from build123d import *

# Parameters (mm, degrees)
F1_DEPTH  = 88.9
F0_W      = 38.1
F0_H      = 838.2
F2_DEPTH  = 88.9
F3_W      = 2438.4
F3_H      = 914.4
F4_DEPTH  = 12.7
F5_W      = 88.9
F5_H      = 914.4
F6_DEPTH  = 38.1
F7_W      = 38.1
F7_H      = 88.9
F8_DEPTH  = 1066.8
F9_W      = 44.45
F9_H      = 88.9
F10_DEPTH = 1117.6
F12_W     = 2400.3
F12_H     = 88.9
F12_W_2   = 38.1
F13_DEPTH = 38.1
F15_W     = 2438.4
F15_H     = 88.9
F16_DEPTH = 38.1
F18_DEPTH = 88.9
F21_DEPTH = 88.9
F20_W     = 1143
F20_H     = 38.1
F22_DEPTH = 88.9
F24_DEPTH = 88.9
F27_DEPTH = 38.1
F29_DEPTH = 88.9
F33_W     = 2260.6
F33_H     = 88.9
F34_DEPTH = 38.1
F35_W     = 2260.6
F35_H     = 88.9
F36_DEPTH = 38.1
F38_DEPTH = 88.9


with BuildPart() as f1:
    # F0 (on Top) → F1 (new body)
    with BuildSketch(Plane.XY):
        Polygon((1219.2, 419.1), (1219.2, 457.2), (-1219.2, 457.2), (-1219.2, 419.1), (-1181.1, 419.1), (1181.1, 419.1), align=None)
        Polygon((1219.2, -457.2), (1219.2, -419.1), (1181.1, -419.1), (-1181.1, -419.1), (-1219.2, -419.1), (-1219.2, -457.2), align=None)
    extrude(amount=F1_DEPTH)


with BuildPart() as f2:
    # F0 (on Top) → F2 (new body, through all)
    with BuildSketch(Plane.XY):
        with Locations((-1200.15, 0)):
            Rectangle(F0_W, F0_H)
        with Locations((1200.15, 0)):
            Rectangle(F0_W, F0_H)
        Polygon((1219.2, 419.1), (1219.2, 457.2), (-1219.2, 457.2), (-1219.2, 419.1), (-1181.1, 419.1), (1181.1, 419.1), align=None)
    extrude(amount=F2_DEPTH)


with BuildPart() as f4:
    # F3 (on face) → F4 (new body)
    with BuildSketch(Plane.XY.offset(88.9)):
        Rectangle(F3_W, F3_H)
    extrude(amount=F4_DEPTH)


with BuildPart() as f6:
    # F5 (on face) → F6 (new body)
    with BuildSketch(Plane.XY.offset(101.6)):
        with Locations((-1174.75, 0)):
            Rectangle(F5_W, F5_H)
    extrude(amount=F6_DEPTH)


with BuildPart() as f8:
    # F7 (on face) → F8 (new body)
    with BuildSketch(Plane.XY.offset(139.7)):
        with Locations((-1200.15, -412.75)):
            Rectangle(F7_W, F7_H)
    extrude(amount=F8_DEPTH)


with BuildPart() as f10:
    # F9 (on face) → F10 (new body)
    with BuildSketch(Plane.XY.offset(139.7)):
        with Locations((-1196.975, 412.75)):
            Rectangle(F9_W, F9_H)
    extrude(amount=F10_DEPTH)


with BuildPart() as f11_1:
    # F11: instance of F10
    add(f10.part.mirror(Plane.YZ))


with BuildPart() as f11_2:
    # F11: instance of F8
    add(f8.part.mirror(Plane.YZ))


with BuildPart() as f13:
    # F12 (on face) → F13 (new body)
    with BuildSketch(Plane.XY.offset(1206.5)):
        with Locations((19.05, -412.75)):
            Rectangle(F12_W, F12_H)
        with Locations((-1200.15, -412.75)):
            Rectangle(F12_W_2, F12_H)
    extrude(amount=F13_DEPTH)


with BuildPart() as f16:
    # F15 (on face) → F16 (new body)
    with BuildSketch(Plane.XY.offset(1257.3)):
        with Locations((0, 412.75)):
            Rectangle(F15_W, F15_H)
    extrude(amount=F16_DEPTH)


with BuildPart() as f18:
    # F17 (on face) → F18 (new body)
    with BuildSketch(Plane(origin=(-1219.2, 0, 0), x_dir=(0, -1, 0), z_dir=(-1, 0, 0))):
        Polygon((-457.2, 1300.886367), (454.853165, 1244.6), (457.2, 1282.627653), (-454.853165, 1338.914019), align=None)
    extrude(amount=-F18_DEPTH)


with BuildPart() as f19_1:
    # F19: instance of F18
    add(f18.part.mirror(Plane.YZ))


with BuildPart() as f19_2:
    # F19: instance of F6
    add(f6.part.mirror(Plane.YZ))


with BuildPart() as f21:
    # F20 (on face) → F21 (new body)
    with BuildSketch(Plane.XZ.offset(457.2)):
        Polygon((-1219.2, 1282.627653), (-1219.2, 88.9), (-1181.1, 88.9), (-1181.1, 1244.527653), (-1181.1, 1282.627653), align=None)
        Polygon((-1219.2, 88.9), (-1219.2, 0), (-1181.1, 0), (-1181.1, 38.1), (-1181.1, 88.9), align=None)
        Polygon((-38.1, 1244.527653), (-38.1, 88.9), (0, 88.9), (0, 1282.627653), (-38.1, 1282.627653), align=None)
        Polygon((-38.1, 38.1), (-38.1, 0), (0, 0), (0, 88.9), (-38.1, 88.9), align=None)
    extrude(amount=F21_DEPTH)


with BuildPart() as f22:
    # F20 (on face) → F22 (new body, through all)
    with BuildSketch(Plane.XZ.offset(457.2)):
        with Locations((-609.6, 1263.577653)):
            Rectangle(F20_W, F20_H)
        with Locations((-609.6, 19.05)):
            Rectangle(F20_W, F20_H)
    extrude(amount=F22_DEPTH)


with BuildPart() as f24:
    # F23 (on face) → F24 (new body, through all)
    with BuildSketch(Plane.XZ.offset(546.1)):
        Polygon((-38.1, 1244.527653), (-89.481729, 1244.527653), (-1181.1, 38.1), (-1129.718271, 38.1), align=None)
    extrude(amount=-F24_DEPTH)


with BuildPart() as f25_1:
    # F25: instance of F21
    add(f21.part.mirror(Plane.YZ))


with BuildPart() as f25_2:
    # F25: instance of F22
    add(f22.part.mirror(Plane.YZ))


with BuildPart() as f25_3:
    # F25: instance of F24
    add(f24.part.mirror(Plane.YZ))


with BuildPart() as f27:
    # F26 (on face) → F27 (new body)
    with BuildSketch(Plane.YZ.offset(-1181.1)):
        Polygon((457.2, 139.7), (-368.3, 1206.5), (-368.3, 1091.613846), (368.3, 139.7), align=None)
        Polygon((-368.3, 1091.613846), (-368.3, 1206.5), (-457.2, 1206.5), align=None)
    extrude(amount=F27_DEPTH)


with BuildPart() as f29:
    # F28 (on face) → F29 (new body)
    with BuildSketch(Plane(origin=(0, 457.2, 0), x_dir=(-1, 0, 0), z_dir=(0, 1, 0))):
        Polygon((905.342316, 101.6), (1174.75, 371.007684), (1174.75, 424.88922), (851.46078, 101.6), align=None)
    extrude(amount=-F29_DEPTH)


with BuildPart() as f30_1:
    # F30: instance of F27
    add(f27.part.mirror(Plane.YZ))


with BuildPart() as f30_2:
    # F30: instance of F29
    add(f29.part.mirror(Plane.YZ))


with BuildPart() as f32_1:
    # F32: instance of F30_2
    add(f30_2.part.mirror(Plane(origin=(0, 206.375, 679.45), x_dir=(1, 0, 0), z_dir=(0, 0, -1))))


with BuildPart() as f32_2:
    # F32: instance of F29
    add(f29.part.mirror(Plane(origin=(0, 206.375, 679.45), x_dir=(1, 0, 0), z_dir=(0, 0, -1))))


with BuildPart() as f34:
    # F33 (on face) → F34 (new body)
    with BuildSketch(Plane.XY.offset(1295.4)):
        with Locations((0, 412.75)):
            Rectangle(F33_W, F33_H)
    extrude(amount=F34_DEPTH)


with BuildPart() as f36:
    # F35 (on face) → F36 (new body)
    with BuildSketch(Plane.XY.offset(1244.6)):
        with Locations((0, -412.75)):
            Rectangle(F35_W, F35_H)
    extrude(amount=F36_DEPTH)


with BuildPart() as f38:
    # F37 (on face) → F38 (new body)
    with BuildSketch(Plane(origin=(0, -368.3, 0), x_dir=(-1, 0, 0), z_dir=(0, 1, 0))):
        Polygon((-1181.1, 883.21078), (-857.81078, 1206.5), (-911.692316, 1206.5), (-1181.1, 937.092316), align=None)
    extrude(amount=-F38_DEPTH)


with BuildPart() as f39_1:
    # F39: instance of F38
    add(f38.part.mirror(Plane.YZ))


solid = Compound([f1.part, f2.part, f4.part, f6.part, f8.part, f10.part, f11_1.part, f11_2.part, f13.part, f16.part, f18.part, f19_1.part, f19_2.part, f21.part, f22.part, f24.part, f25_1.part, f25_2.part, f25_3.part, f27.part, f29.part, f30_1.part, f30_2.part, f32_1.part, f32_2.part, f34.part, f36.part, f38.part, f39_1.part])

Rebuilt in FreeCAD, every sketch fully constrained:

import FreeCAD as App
import Part
import Sketcher

V = App.Vector
Q = App.Units.Quantity


def add_polygon(sketch, points):
    """Adds a closed chain of lines whose ends are joined by coincident constraints."""
    first, n = sketch.GeometryCount, len(points)
    for a, b in zip(points, points[1:] + points[:1]):
        sketch.addGeometry(Part.LineSegment(App.Vector(*a, 0), App.Vector(*b, 0)), False)
    for i in range(n):
        sketch.addConstraint(Sketcher.Constraint("Coincident", first + i, 2, first + (i + 1) % n, 1))

doc = App.newDocument("Part")
body = doc.addObject("PartDesign::Body", "Body")
body.AllowCompound = True

# Sketch on XY plane
sketch1 = body.newObject("Sketcher::SketchObject", "Sketch")
sketch1.AttachmentSupport = (doc.getObject("XY_Plane"), [""])
sketch1.MapMode = "FlatFace"
add_polygon(sketch1, [(1219, 419), (1219, 457), (-1219, 457), (-1219, 419)])  # lines 0-3
add_polygon(sketch1, [(1219, -457), (1219, -419), (-1219, -419), (-1219, -457)])  # lines 4-7
sketch1.addConstraint([
    Sketcher.Constraint("Vertical", 0),
    Sketcher.Constraint("Horizontal", 1),
    Sketcher.Constraint("Vertical", 2),
    Sketcher.Constraint("Horizontal", 3),
    Sketcher.Constraint("Vertical", 4),
    Sketcher.Constraint("Horizontal", 5),
    Sketcher.Constraint("Vertical", 6),
    Sketcher.Constraint("Horizontal", 7),
    Sketcher.Constraint("Symmetric", 2, 2, 4, 2, -1, 1),
    Sketcher.Constraint("Symmetric", 0, 2, 6, 2, -1, 1),
    Sketcher.Constraint("Vertical", 3, 2, 4, 2),
    Sketcher.Constraint("DistanceX", 1, 2, 1, 1, Q("96 in")),
    Sketcher.Constraint("DistanceY", 0, 1, 0, 2, Q("1.5 in")),
    Sketcher.Constraint("DistanceY", -1, 1, 0, 2, Q("18 in")),
])
pad1 = body.newObject("PartDesign::Pad", "Pad")
pad1.Profile = sketch1
pad1.Length = Q("3.5 in")
body2 = doc.addObject("PartDesign::Body", "Body001")

# Sketch on XY plane
sketch2 = body2.newObject("Sketcher::SketchObject", "Sketch001")
sketch2.AttachmentSupport = (doc.getObject("XY_Plane001"), [""])
sketch2.MapMode = "FlatFace"
add_polygon(sketch2, [(-1219, -419), (-1181, -419), (-1181, 419), (1181, 419), (1181, -419), (1219, -419), (1219, 457), (-1219, 457)])  # lines 0-7
sketch2.addConstraint([
    Sketcher.Constraint("Horizontal", 0),
    Sketcher.Constraint("Vertical", 1),
    Sketcher.Constraint("Horizontal", 2),
    Sketcher.Constraint("Vertical", 3),
    Sketcher.Constraint("Horizontal", 4),
    Sketcher.Constraint("Vertical", 5),
    Sketcher.Constraint("Horizontal", 6),
    Sketcher.Constraint("Vertical", 7),
    Sketcher.Constraint("Symmetric", 0, 2, 2, 2, -1, 1),
    Sketcher.Constraint("Symmetric", 4, 2, 7, 2, -2),
    Sketcher.Constraint("DistanceX", 2, 1, 2, 2, Q("93 in")),
    Sketcher.Constraint("DistanceX", 6, 2, 6, 1, Q("96 in")),
    Sketcher.Constraint("DistanceY", 1, 1, 1, 2, Q("33 in")),
    Sketcher.Constraint("DistanceY", 5, 1, 5, 2, Q("34.5 in")),
])
pad2 = body2.newObject("PartDesign::Pad", "Pad001")
pad2.Profile = sketch2
pad2.Length = Q("3.5 in")
body3 = doc.addObject("PartDesign::Body", "Body002")

# Sketch on XY plane
sketch3 = body3.newObject("Sketcher::SketchObject", "Sketch002")
sketch3.AttachmentSupport = (doc.getObject("XY_Plane002"), [""])
sketch3.MapMode = "FlatFace"
sketch3.AttachmentOffset = App.Placement(V(0, 0, 3.5 * 25.4), App.Rotation())
add_polygon(sketch3, [(-1219, 457), (-1219, -457), (1219, -457), (1219, 457)])  # lines 0-3
sketch3.addConstraint([
    Sketcher.Constraint("Vertical", 0),
    Sketcher.Constraint("Horizontal", 1),
    Sketcher.Constraint("Vertical", 2),
    Sketcher.Constraint("Horizontal", 3),
    Sketcher.Constraint("Symmetric", 0, 2, 2, 2, -1, 1),
    Sketcher.Constraint("DistanceX", 1, 1, 1, 2, Q("96 in")),
    Sketcher.Constraint("DistanceY", 0, 2, 0, 1, Q("36 in")),
])
pad3 = body3.newObject("PartDesign::Pad", "Pad002")
pad3.Profile = sketch3
pad3.Length = Q("0.5 in")
body4 = doc.addObject("PartDesign::Body", "Body003")

# Sketch on XY plane
sketch4 = body4.newObject("Sketcher::SketchObject", "Sketch003")
sketch4.AttachmentSupport = (doc.getObject("XY_Plane003"), [""])
sketch4.MapMode = "FlatFace"
sketch4.AttachmentOffset = App.Placement(V(0, 0, 4 * 25.4), App.Rotation())
add_polygon(sketch4, [(-1219, 457), (-1219, -457), (-1130, -457), (-1130, 457)])  # lines 0-3
sketch4.addConstraint([
    Sketcher.Constraint("Vertical", 0),
    Sketcher.Constraint("Horizontal", 1),
    Sketcher.Constraint("Vertical", 2),
    Sketcher.Constraint("Horizontal", 3),
    Sketcher.Constraint("DistanceY", 0, 2, 0, 1, Q("36 in")),
    Sketcher.Constraint("DistanceX", 1, 1, 1, 2, Q("3.5 in")),
    Sketcher.Constraint("DistanceX", 0, 2, -1, 1, Q("48 in")),
    Sketcher.Constraint("DistanceY", 0, 2, -1, 1, Q("18 in")),
])
pad4 = body4.newObject("PartDesign::Pad", "Pad003")
pad4.Profile = sketch4
pad4.Length = Q("1.5 in")
body5 = doc.addObject("PartDesign::Body", "Body004")

# Sketch on XY plane
sketch5 = body5.newObject("Sketcher::SketchObject", "Sketch004")
sketch5.AttachmentSupport = (doc.getObject("XY_Plane004"), [""])
sketch5.MapMode = "FlatFace"
sketch5.AttachmentOffset = App.Placement(V(0, 0, 5.5 * 25.4), App.Rotation())
add_polygon(sketch5, [(-1219, -368), (-1219, -457), (-1181, -457), (-1181, -368)])  # lines 0-3
sketch5.addConstraint([
    Sketcher.Constraint("Vertical", 0),
    Sketcher.Constraint("Horizontal", 1),
    Sketcher.Constraint("Vertical", 2),
    Sketcher.Constraint("Horizontal", 3),
    Sketcher.Constraint("DistanceX", 1, 1, 1, 2, Q("1.5 in")),
    Sketcher.Constraint("DistanceY", 0, 2, 0, 1, Q("3.5 in")),
    Sketcher.Constraint("DistanceX", 0, 2, -1, 1, Q("48 in")),
    Sketcher.Constraint("DistanceY", 0, 2, -1, 1, Q("18 in")),
])
pad5 = body5.newObject("PartDesign::Pad", "Pad004")
pad5.Profile = sketch5
pad5.Length = Q("42 in")
body6 = doc.addObject("PartDesign::Body", "Body005")

# Sketch on XY plane
sketch6 = body6.newObject("Sketcher::SketchObject", "Sketch005")
sketch6.AttachmentSupport = (doc.getObject("XY_Plane005"), [""])
sketch6.MapMode = "FlatFace"
sketch6.AttachmentOffset = App.Placement(V(0, 0, 5.5 * 25.4), App.Rotation())
add_polygon(sketch6, [(-1219, 457), (-1219, 368), (-1175, 368), (-1175, 457)])  # lines 0-3
sketch6.addConstraint([
    Sketcher.Constraint("Vertical", 0),
    Sketcher.Constraint("Horizontal", 1),
    Sketcher.Constraint("Vertical", 2),
    Sketcher.Constraint("Horizontal", 3),
    Sketcher.Constraint("DistanceY", 0, 2, 0, 1, Q("3.5 in")),
    Sketcher.Constraint("DistanceX", 0, 2, -1, 1, Q("48 in")),
    Sketcher.Constraint("DistanceY", -1, 1, 2, 2, Q("18 in")),
    Sketcher.Constraint("DistanceX", 1, 1, 1, 2, Q("1.75 in")),
])
pad6 = body6.newObject("PartDesign::Pad", "Pad005")
pad6.Profile = sketch6
pad6.Length = Q("44 in")
body7 = doc.addObject("PartDesign::Body", "Body006")
doc.recompute()

mirroring = doc.addObject("Part::Mirroring", "Mirroring")
mirroring.Source = body6
mirroring.Base = V(0, 0, 0)
mirroring.Normal = V(1, 0, 0)
body7.BaseFeature = mirroring
doc.recompute()
body8 = doc.addObject("PartDesign::Body", "Body007")
doc.recompute()

mirroring2 = doc.addObject("Part::Mirroring", "Mirroring001")
mirroring2.Source = body5
mirroring2.Base = V(0, 0, 0)
mirroring2.Normal = V(1, 0, 0)
body8.BaseFeature = mirroring2
doc.recompute()
body9 = doc.addObject("PartDesign::Body", "Body008")

# Sketch on XY plane
sketch7 = body9.newObject("Sketcher::SketchObject", "Sketch006")
sketch7.AttachmentSupport = (doc.getObject("XY_Plane008"), [""])
sketch7.MapMode = "FlatFace"
sketch7.AttachmentOffset = App.Placement(V(0, 0, 47.5 * 25.4), App.Rotation())
add_polygon(sketch7, [(1219, -457), (1219, -368), (-1219, -368), (-1219, -457)])  # lines 0-3
sketch7.addConstraint([
    Sketcher.Constraint("Vertical", 0),
    Sketcher.Constraint("Horizontal", 1),
    Sketcher.Constraint("Vertical", 2),
    Sketcher.Constraint("Horizontal", 3),
    Sketcher.Constraint("DistanceX", 1, 2, 1, 1, Q("96 in")),
    Sketcher.Constraint("DistanceY", 0, 1, 0, 2, Q("3.5 in")),
    Sketcher.Constraint("DistanceX", -1, 1, 0, 2, Q("48 in")),
    Sketcher.Constraint("DistanceY", 2, 2, -1, 1, Q("18 in")),
])
pad7 = body9.newObject("PartDesign::Pad", "Pad006")
pad7.Profile = sketch7
pad7.Length = Q("1.5 in")
body10 = doc.addObject("PartDesign::Body", "Body009")

# Sketch on XY plane
sketch8 = body10.newObject("Sketcher::SketchObject", "Sketch007")
sketch8.AttachmentSupport = (doc.getObject("XY_Plane009"), [""])
sketch8.MapMode = "FlatFace"
sketch8.AttachmentOffset = App.Placement(V(0, 0, 49.5 * 25.4), App.Rotation())
add_polygon(sketch8, [(-1219, 457), (-1219, 368), (1219, 368), (1219, 457)])  # lines 0-3
sketch8.addConstraint([
    Sketcher.Constraint("Vertical", 0),
    Sketcher.Constraint("Horizontal", 1),
    Sketcher.Constraint("Vertical", 2),
    Sketcher.Constraint("Horizontal", 3),
    Sketcher.Constraint("DistanceX", 1, 1, 1, 2, Q("96 in")),
    Sketcher.Constraint("DistanceY", 0, 2, 0, 1, Q("3.5 in")),
    Sketcher.Constraint("DistanceX", 0, 2, -1, 1, Q("48 in")),
    Sketcher.Constraint("DistanceY", -1, 1, 2, 2, Q("18 in")),
])
pad8 = body10.newObject("PartDesign::Pad", "Pad007")
pad8.Profile = sketch8
pad8.Length = Q("1.5 in")
body11 = doc.addObject("PartDesign::Body", "Body010")

# Sketch on YZ plane
sketch9 = body11.newObject("Sketcher::SketchObject", "Sketch008")
sketch9.AttachmentSupport = (doc.getObject("YZ_Plane010"), [""])
sketch9.MapMode = "FlatFace"
sketch9.AttachmentOffset = App.Placement(V(0, 0, -48 * 25.4), App.Rotation())
add_polygon(sketch9, [(457, 1301), (-455, 1245), (-457, 1283), (455, 1339)])  # lines 0-3
sketch9.addConstraint([
    Sketcher.Constraint("Perpendicular", 0, 1),
    Sketcher.Constraint("Perpendicular", 1, 2),
    Sketcher.Constraint("Perpendicular", 2, 3),
    Sketcher.Constraint("DistanceY", -1, 1, 0, 2, Q("49 in")),
    Sketcher.Constraint("DistanceX", 1, 2, -1, 1, Q("18 in")),
    Sketcher.Constraint("DistanceX", -1, 1, 3, 2, Q("18 in")),
    Sketcher.Constraint("Distance", 1, Q("1.5 in")),
    Sketcher.Constraint("Distance", 0, 913.78834),
])
pad9 = body11.newObject("PartDesign::Pad", "Pad008")
pad9.Profile = sketch9
pad9.Length = Q("3.5 in")
body12 = doc.addObject("PartDesign::Body", "Body011")
doc.recompute()

mirroring3 = doc.addObject("Part::Mirroring", "Mirroring002")
mirroring3.Source = body11
mirroring3.Base = V(0, 0, 0)
mirroring3.Normal = V(1, 0, 0)
body12.BaseFeature = mirroring3
doc.recompute()
body13 = doc.addObject("PartDesign::Body", "Body012")
doc.recompute()

mirroring4 = doc.addObject("Part::Mirroring", "Mirroring003")
mirroring4.Source = body4
mirroring4.Base = V(0, 0, 0)
mirroring4.Normal = V(1, 0, 0)
body13.BaseFeature = mirroring4
doc.recompute()
body14 = doc.addObject("PartDesign::Body", "Body013")
body14.AllowCompound = True

# Sketch on XZ plane
sketch10 = body14.newObject("Sketcher::SketchObject", "Sketch009")
sketch10.AttachmentSupport = (doc.getObject("XZ_Plane013"), [""])
sketch10.MapMode = "FlatFace"
sketch10.AttachmentOffset = App.Placement(V(0, 0, 18 * 25.4), App.Rotation())
add_polygon(sketch10, [(-1219, 1283), (-1219, 0), (-1181, 0), (-1181, 1283)])  # lines 0-3
add_polygon(sketch10, [(0, 1283), (-38, 1283), (-38, 0), (0, 0)])  # lines 4-7
sketch10.addConstraint([
    Sketcher.Constraint("Vertical", 0),
    Sketcher.Constraint("Horizontal", 1),
    Sketcher.Constraint("Vertical", 2),
    Sketcher.Constraint("Horizontal", 3),
    Sketcher.Constraint("Horizontal", 4),
    Sketcher.Constraint("Vertical", 5),
    Sketcher.Constraint("Horizontal", 6),
    Sketcher.Constraint("Vertical", 7),
    Sketcher.Constraint("Coincident", 6, 2, -1, 1),
    Sketcher.Constraint("PointOnObject", 0, 2, -1),
    Sketcher.Constraint("Horizontal", 3, 2, 4, 2),
    Sketcher.Constraint("Equal", 3, 4),
    Sketcher.Constraint("DistanceX", 1, 1, 1, 2, Q("1.5 in")),
    Sketcher.Constraint("DistanceX", 0, 2, -1, 1, Q("48 in")),
    Sketcher.Constraint("DistanceY", 0, 2, 0, 1, 1282.627653),
])
pad10 = body14.newObject("PartDesign::Pad", "Pad009")
pad10.Profile = sketch10
pad10.Length = Q("3.5 in")
body15 = doc.addObject("PartDesign::Body", "Body014")
body15.AllowCompound = True

# Sketch on XZ plane
sketch11 = body15.newObject("Sketcher::SketchObject", "Sketch010")
sketch11.AttachmentSupport = (doc.getObject("XZ_Plane014"), [""])
sketch11.MapMode = "FlatFace"
sketch11.AttachmentOffset = App.Placement(V(0, 0, 18 * 25.4), App.Rotation())
add_polygon(sketch11, [(-1181, 1283), (-1181, 1245), (-38, 1245), (-38, 1283)])  # lines 0-3
add_polygon(sketch11, [(-1181, 38), (-1181, 0), (-38, 0), (-38, 38)])  # lines 4-7
sketch11.addConstraint([
    Sketcher.Constraint("Vertical", 0),
    Sketcher.Constraint("Horizontal", 1),
    Sketcher.Constraint("Vertical", 2),
    Sketcher.Constraint("Horizontal", 3),
    Sketcher.Constraint("Vertical", 4),
    Sketcher.Constraint("Horizontal", 5),
    Sketcher.Constraint("Vertical", 6),
    Sketcher.Constraint("Horizontal", 7),
    Sketcher.Constraint("PointOnObject", 4, 2, -1),
    Sketcher.Constraint("Vertical", 3, 2, 4, 2),
    Sketcher.Constraint("Vertical", 2, 2, 5, 2),
    Sketcher.Constraint("Equal", 2, 4),
    Sketcher.Constraint("DistanceX", 1, 1, 1, 2, Q("45 in")),
    Sketcher.Constraint("DistanceY", 0, 2, 0, 1, Q("1.5 in")),
    Sketcher.Constraint("DistanceX", 0, 2, -1, 1, Q("46.5 in")),
    Sketcher.Constraint("DistanceY", -1, 1, 0, 2, 1244.527653),
])
pad11 = body15.newObject("PartDesign::Pad", "Pad010")
pad11.Profile = sketch11
pad11.Length = Q("3.5 in")
body16 = doc.addObject("PartDesign::Body", "Body015")

# Sketch on XZ plane
sketch12 = body16.newObject("Sketcher::SketchObject", "Sketch011")
sketch12.AttachmentSupport = (doc.getObject("XZ_Plane015"), [""])
sketch12.MapMode = "FlatFace"
sketch12.AttachmentOffset = App.Placement(V(0, 0, 21.5 * 25.4), App.Rotation())
add_polygon(sketch12, [(-38, 1245), (-89, 1245), (-1181, 38), (-1130, 38)])  # lines 0-3
sketch12.addConstraint([
    Sketcher.Constraint("Horizontal", 0),
    Sketcher.Constraint("Horizontal", 2),
    Sketcher.Constraint("Parallel", 1, 3),
    Sketcher.Constraint("DistanceX", 1, 2, 3, 2, Q("45 in")),
    Sketcher.Constraint("DistanceX", 1, 2, -1, 1, Q("46.5 in")),
    Sketcher.Constraint("DistanceY", -1, 1, 1, 2, Q("1.5 in")),
    Sketcher.Constraint("DistanceX", 0, 2, 0, 1, 51.381729),
    Sketcher.Constraint("Distance", 1, 1626.990514),
])
pad12 = body16.newObject("PartDesign::Pad", "Pad011")
pad12.Profile = sketch12
pad12.Length = Q("3.5 in")
pad12.Reversed = True
body17 = doc.addObject("PartDesign::Body", "Body016")
body17.AllowCompound = True
doc.recompute()

mirroring5 = doc.addObject("Part::Mirroring", "Mirroring004")
mirroring5.Source = body14
mirroring5.Base = V(0, 0, 0)
mirroring5.Normal = V(1, 0, 0)
body17.BaseFeature = mirroring5
doc.recompute()
body18 = doc.addObject("PartDesign::Body", "Body017")
body18.AllowCompound = True
doc.recompute()

mirroring6 = doc.addObject("Part::Mirroring", "Mirroring005")
mirroring6.Source = body15
mirroring6.Base = V(0, 0, 0)
mirroring6.Normal = V(1, 0, 0)
body18.BaseFeature = mirroring6
doc.recompute()
body19 = doc.addObject("PartDesign::Body", "Body018")
doc.recompute()

mirroring7 = doc.addObject("Part::Mirroring", "Mirroring006")
mirroring7.Source = body16
mirroring7.Base = V(0, 0, 0)
mirroring7.Normal = V(1, 0, 0)
body19.BaseFeature = mirroring7
doc.recompute()
body20 = doc.addObject("PartDesign::Body", "Body019")

# Sketch on YZ plane
sketch13 = body20.newObject("Sketcher::SketchObject", "Sketch012")
sketch13.AttachmentSupport = (doc.getObject("YZ_Plane019"), [""])
sketch13.MapMode = "FlatFace"
sketch13.AttachmentOffset = App.Placement(V(0, 0, -46.5 * 25.4), App.Rotation())
add_polygon(sketch13, [(457, 140), (-368, 1206), (-457, 1206), (-368, 1092), (368, 140)])  # lines 0-4
sketch13.addConstraint([
    Sketcher.Constraint("Horizontal", 1),
    Sketcher.Constraint("Horizontal", 4),
    Sketcher.Constraint("Parallel", 0, 2),
    Sketcher.Constraint("Parallel", 2, 3),
    Sketcher.Constraint("Vertical", 0, 2, 2, 2),
    Sketcher.Constraint("DistanceX", 1, 2, 1, 1, Q("3.5 in")),
    Sketcher.Constraint("DistanceX", 1, 2, -1, 1, Q("18 in")),
    Sketcher.Constraint("DistanceX", -1, 1, 4, 2, Q("18 in")),
    Sketcher.Constraint("DistanceY", 3, 2, 0, 2, Q("42 in")),
    Sketcher.Constraint("DistanceY", -1, 1, 0, 2, Q("47.5 in")),
])
pad13 = body20.newObject("PartDesign::Pad", "Pad012")
pad13.Profile = sketch13
pad13.Length = Q("1.5 in")
body21 = doc.addObject("PartDesign::Body", "Body020")

# Sketch on XZ plane
sketch14 = body21.newObject("Sketcher::SketchObject", "Sketch013")
sketch14.AttachmentSupport = (doc.getObject("XZ_Plane020"), [""])
sketch14.MapMode = "FlatFace"
sketch14.AttachmentOffset = App.Placement(V(0, 0, -18 * 25.4), App.Rotation())
add_polygon(sketch14, [(-905, 102), (-1175, 371), (-1175, 425), (-851, 102)])  # lines 0-3
sketch14.addConstraint([
    Sketcher.Constraint("Vertical", 1),
    Sketcher.Constraint("Horizontal", 3),
    Sketcher.Constraint("Parallel", 0, 2),
    Sketcher.Constraint("Equal", 3, 1),
    Sketcher.Constraint("Distance", 0, Q("15 in")),
    Sketcher.Constraint("Distance", 2, Q("18 in")),
    Sketcher.Constraint("DistanceY", -1, 1, 2, 2, Q("4 in")),
    Sketcher.Constraint("DistanceX", 0, 2, -1, 1, Q("46.25 in")),
])
pad14 = body21.newObject("PartDesign::Pad", "Pad013")
pad14.Profile = sketch14
pad14.Length = Q("3.5 in")
body22 = doc.addObject("PartDesign::Body", "Body021")
doc.recompute()

mirroring8 = doc.addObject("Part::Mirroring", "Mirroring007")
mirroring8.Source = body20
mirroring8.Base = V(0, 0, 0)
mirroring8.Normal = V(1, 0, 0)
body22.BaseFeature = mirroring8
doc.recompute()
body23 = doc.addObject("PartDesign::Body", "Body022")
doc.recompute()

mirroring9 = doc.addObject("Part::Mirroring", "Mirroring008")
mirroring9.Source = body21
mirroring9.Base = V(0, 0, 0)
mirroring9.Normal = V(1, 0, 0)
body23.BaseFeature = mirroring9
doc.recompute()
body24 = doc.addObject("PartDesign::Body", "Body023")
doc.recompute()

mirroring10 = doc.addObject("Part::Mirroring", "Mirroring009")
mirroring10.Source = body23
mirroring10.Base = V(0, 206.375, 679.45)
mirroring10.Normal = V(0, 0, -1)
body24.BaseFeature = mirroring10
doc.recompute()
body25 = doc.addObject("PartDesign::Body", "Body024")
doc.recompute()

mirroring11 = doc.addObject("Part::Mirroring", "Mirroring010")
mirroring11.Source = body21
mirroring11.Base = V(0, 206.375, 679.45)
mirroring11.Normal = V(0, 0, -1)
body25.BaseFeature = mirroring11
doc.recompute()
body26 = doc.addObject("PartDesign::Body", "Body025")

# Sketch on XY plane
sketch15 = body26.newObject("Sketcher::SketchObject", "Sketch014")
sketch15.AttachmentSupport = (doc.getObject("XY_Plane025"), [""])
sketch15.MapMode = "FlatFace"
sketch15.AttachmentOffset = App.Placement(V(0, 0, 51 * 25.4), App.Rotation())
add_polygon(sketch15, [(-1130, 457), (-1130, 368), (1130, 368), (1130, 457)])  # lines 0-3
sketch15.addConstraint([
    Sketcher.Constraint("Vertical", 0),
    Sketcher.Constraint("Horizontal", 1),
    Sketcher.Constraint("Vertical", 2),
    Sketcher.Constraint("Horizontal", 3),
    Sketcher.Constraint("DistanceX", 1, 1, 1, 2, Q("89 in")),
    Sketcher.Constraint("DistanceY", 0, 2, 0, 1, Q("3.5 in")),
    Sketcher.Constraint("DistanceY", -1, 1, 2, 2, Q("18 in")),
    Sketcher.Constraint("DistanceX", 0, 2, -1, 1, Q("44.5 in")),
])
pad15 = body26.newObject("PartDesign::Pad", "Pad014")
pad15.Profile = sketch15
pad15.Length = Q("1.5 in")
body27 = doc.addObject("PartDesign::Body", "Body026")

# Sketch on XY plane
sketch16 = body27.newObject("Sketcher::SketchObject", "Sketch015")
sketch16.AttachmentSupport = (doc.getObject("XY_Plane026"), [""])
sketch16.MapMode = "FlatFace"
sketch16.AttachmentOffset = App.Placement(V(0, 0, 49 * 25.4), App.Rotation())
add_polygon(sketch16, [(-1130, -368), (-1130, -457), (1130, -457), (1130, -368)])  # lines 0-3
sketch16.addConstraint([
    Sketcher.Constraint("Vertical", 0),
    Sketcher.Constraint("Horizontal", 1),
    Sketcher.Constraint("Vertical", 2),
    Sketcher.Constraint("Horizontal", 3),
    Sketcher.Constraint("DistanceX", 1, 1, 1, 2, Q("89 in")),
    Sketcher.Constraint("DistanceY", 0, 2, 0, 1, Q("3.5 in")),
    Sketcher.Constraint("DistanceY", 0, 2, -1, 1, Q("18 in")),
    Sketcher.Constraint("DistanceX", 0, 2, -1, 1, Q("44.5 in")),
])
pad16 = body27.newObject("PartDesign::Pad", "Pad015")
pad16.Profile = sketch16
pad16.Length = Q("1.5 in")
body28 = doc.addObject("PartDesign::Body", "Body027")

# Sketch on XZ plane
sketch17 = body28.newObject("Sketcher::SketchObject", "Sketch016")
sketch17.AttachmentSupport = (doc.getObject("XZ_Plane027"), [""])
sketch17.MapMode = "FlatFace"
sketch17.AttachmentOffset = App.Placement(V(0, 0, 14.5 * 25.4), App.Rotation())
add_polygon(sketch17, [(1181, 883), (858, 1206), (912, 1206), (1181, 937)])  # lines 0-3
sketch17.addConstraint([
    Sketcher.Constraint("Horizontal", 1),
    Sketcher.Constraint("Vertical", 3),
    Sketcher.Constraint("Parallel", 0, 2),
    Sketcher.Constraint("Equal", 1, 3),
    Sketcher.Constraint("Distance", 0, Q("18 in")),
    Sketcher.Constraint("Distance", 2, Q("15 in")),
    Sketcher.Constraint("DistanceY", -1, 1, 0, 2, Q("47.5 in")),
    Sketcher.Constraint("DistanceX", -1, 1, 2, 2, Q("46.5 in")),
])
pad17 = body28.newObject("PartDesign::Pad", "Pad016")
pad17.Profile = sketch17
pad17.Length = Q("3.5 in")
body29 = doc.addObject("PartDesign::Body", "Body028")
doc.recompute()

mirroring12 = doc.addObject("Part::Mirroring", "Mirroring011")
mirroring12.Source = body28
mirroring12.Base = V(0, 0, 0)
mirroring12.Normal = V(1, 0, 0)
body29.BaseFeature = mirroring12
doc.recompute()

doc.recompute()
